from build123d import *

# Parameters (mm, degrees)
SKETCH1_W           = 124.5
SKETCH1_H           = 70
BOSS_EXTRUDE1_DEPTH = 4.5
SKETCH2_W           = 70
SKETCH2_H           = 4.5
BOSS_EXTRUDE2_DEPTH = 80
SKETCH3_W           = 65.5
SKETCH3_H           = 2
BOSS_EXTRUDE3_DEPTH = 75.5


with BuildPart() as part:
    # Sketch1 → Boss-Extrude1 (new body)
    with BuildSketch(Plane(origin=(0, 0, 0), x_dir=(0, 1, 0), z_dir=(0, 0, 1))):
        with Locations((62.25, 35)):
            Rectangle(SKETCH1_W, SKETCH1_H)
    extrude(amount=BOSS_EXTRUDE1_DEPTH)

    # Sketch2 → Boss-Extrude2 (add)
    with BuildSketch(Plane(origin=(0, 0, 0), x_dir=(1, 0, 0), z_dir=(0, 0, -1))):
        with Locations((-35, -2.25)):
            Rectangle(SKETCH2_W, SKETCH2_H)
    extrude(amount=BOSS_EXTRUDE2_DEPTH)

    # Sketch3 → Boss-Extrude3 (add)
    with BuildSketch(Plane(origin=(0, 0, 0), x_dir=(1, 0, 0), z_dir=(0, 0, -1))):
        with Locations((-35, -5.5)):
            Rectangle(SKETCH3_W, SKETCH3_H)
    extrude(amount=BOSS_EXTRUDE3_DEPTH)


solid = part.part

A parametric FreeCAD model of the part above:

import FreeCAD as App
import Part
import Sketcher

V = App.Vector

doc = App.newDocument("Part")
body = doc.addObject("PartDesign::Body", "Body")

# Sketch on XY plane
sketch1 = body.newObject("Sketcher::SketchObject", "Sketch")
sketch1.AttachmentSupport = (doc.getObject("XY_Plane"), [""])
sketch1.MapMode = "FlatFace"
sketch1.addGeometry(Part.LineSegment(V(-70, 0, 0), V(0, 0, 0)), False)
sketch1.addGeometry(Part.LineSegment(V(0, 0, 0), V(0, 124, 0)), False)
sketch1.addGeometry(Part.LineSegment(V(0, 124, 0), V(-70, 124, 0)), False)
sketch1.addGeometry(Part.LineSegment(V(-70, 124, 0), V(-70, 0, 0)), False)
sketch1.addConstraint(Sketcher.Constraint("Coincident", 0, 2, 1, 1))
sketch1.addConstraint(Sketcher.Constraint("Coincident", 1, 2, 2, 1))
sketch1.addConstraint(Sketcher.Constraint("Coincident", 2, 2, 3, 1))
sketch1.addConstraint(Sketcher.Constraint("Coincident", 3, 2, 0, 1))
sketch1.addConstraint(Sketcher.Constraint("Horizontal", 0))
sketch1.addConstraint(Sketcher.Constraint("Vertical", 1))
sketch1.addConstraint(Sketcher.Constraint("Horizontal", 2))
sketch1.addConstraint(Sketcher.Constraint("Vertical", 3))
sketch1.addConstraint(Sketcher.Constraint("Coincident", 0, 2, -1, 1))
sketch1.addConstraint(Sketcher.Constraint("DistanceX", 0, 1, 0, 2, 70.0))
sketch1.addConstraint(Sketcher.Constraint("DistanceY", 1, 1, 1, 2, 124.5))
pad1 = body.newObject("PartDesign::Pad", "Pad")
pad1.Profile = sketch1
pad1.Length = 4.5

# Sketch on XY plane
sketch2 = body.newObject("Sketcher::SketchObject", "Sketch001")
sketch2.AttachmentSupport = (doc.getObject("XY_Plane"), [""])
sketch2.MapMode = "FlatFace"
sketch2.addGeometry(Part.LineSegment(V(-70, 0, 0), V(-70, 4.5, 0)), False)
sketch2.addGeometry(Part.LineSegment(V(-70, 4.5, 0), V(0, 4.5, 0)), False)
sketch2.addGeometry(Part.LineSegment(V(0, 4.5, 0), V(0, 0, 0)), False)
sketch2.addGeometry(Part.LineSegment(V(0, 0, 0), V(-70, 0, 0)), False)
sketch2.addConstraint(Sketcher.Constraint("Coincident", 0, 2, 1, 1))
sketch2.addConstraint(Sketcher.Constraint("Coincident", 1, 2, 2, 1))
sketch2.addConstraint(Sketcher.Constraint("Coincident", 2, 2, 3, 1))
sketch2.addConstraint(Sketcher.Constraint("Coincident", 3, 2, 0, 1))
sketch2.addConstraint(Sketcher.Constraint("Vertical", 0))
sketch2.addConstraint(Sketcher.Constraint("Horizontal", 1))
sketch2.addConstraint(Sketcher.Constraint("Vertical", 2))
sketch2.addConstraint(Sketcher.Constraint("Horizontal", 3))
sketch2.addConstraint(Sketcher.Constraint("Coincident", 2, 2, -1, 1))
sketch2.addConstraint(Sketcher.Constraint("DistanceX", 1, 1, 1, 2, 70.0))
sketch2.addConstraint(Sketcher.Constraint("DistanceY", 0, 1, 0, 2, 4.5))
pad2 = body.newObject("PartDesign::Pad", "Pad001")
pad2.Profile = sketch2
pad2.Length = 80
pad2.Reversed = True

# Sketch on XY plane
sketch3 = body.newObject("Sketcher::SketchObject", "Sketch002")
sketch3.AttachmentSupport = (doc.getObject("XY_Plane"), [""])
sketch3.MapMode = "FlatFace"
sketch3.addGeometry(Part.LineSegment(V(-67.8, 4.5, 0), V(-67.8, 6.5, 0)), False)
sketch3.addGeometry(Part.LineSegment(V(-67.8, 6.5, 0), V(-2.2, 6.5, 0)), False)
sketch3.addGeometry(Part.LineSegment(V(-2.2, 6.5, 0), V(-2.2, 4.5, 0)), False)
sketch3.addGeometry(Part.LineSegment(V(-2.2, 4.5, 0), V(-67.8, 4.5, 0)), False)
sketch3.addConstraint(Sketcher.Constraint("Coincident", 0, 2, 1, 1))
sketch3.addConstraint(Sketcher.Constraint("Coincident", 1, 2, 2, 1))
sketch3.addConstraint(Sketcher.Constraint("Coincident", 2, 2, 3, 1))
sketch3.addConstraint(Sketcher.Constraint("Coincident", 3, 2, 0, 1))
sketch3.addConstraint(Sketcher.Constraint("Vertical", 0))
sketch3.addConstraint(Sketcher.Constraint("Horizontal", 1))
sketch3.addConstraint(Sketcher.Constraint("Vertical", 2))
sketch3.addConstraint(Sketcher.Constraint("Horizontal", 3))
sketch3.addConstraint(Sketcher.Constraint("DistanceY", 0, 1, 0, 2, 2.0))
sketch3.addConstraint(Sketcher.Constraint("DistanceX", 1, 1, 1, 2, 65.5))
sketch3.addConstraint(Sketcher.Constraint("DistanceY", -1, 1, 0, 2, 6.5))
sketch3.addConstraint(Sketcher.Constraint("DistanceX", 0, 2, -1, 1, 67.75))
pad3 = body.newObject("PartDesign::Pad", "Pad002")
pad3.Profile = sketch3
pad3.Length = 75.5
pad3.Reversed = True

doc.recompute()
